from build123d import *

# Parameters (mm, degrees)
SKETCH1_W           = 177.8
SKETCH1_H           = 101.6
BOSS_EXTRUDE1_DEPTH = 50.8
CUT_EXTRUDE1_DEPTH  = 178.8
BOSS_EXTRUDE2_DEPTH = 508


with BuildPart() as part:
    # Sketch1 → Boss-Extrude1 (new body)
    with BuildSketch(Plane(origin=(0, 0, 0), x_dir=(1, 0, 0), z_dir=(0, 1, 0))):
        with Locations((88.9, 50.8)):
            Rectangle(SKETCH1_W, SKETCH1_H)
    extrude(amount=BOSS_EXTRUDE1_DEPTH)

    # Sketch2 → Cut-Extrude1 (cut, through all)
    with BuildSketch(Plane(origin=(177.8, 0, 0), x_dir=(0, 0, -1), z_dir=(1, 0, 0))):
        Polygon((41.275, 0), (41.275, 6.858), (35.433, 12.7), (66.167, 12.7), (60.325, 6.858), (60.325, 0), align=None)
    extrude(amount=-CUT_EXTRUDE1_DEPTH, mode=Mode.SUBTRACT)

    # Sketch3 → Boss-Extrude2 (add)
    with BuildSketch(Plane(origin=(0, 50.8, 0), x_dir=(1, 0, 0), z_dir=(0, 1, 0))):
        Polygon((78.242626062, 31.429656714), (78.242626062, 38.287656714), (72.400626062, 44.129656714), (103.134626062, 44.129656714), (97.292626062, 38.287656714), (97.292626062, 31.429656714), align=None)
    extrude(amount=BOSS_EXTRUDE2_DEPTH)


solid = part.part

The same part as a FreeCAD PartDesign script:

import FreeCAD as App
import Part
import Sketcher
Q = App.Units.Quantity


def add_polygon(sketch, points):
    """Adds a closed chain of lines whose ends are joined by coincident constraints."""
    first, n = sketch.GeometryCount, len(points)
    for a, b in zip(points, points[1:] + points[:1]):
        sketch.addGeometry(Part.LineSegment(App.Vector(*a, 0), App.Vector(*b, 0)), False)
    for i in range(n):
        sketch.addConstraint(Sketcher.Constraint("Coincident", first + i, 2, first + (i + 1) % n, 1))

doc = App.newDocument("Part")
body = doc.addObject("PartDesign::Body", "Body")

sketch1 = doc.addObject("Sketcher::SketchObject", "Sketch")
body.addObject(sketch1)
sketch1.AttachmentSupport = (doc.XZ_Plane, [""])
sketch1.MapMode = "FlatFace"
add_polygon(sketch1, [(0, -101.6), (0, 0), (177.8, 0), (177.8, -101.6)])
sketch1.addConstraint([
    Sketcher.Constraint("Vertical", 0),
    Sketcher.Constraint("Horizontal", 1),
    Sketcher.Constraint("Vertical", 2),
    Sketcher.Constraint("Horizontal", 3),
    Sketcher.Constraint("Coincident", 0, 2, -1, 1),
    Sketcher.Constraint("DistanceX", 1, 1, 1, 2, Q("7 in")),
    Sketcher.Constraint("DistanceY", 0, 1, 0, 2, Q("4 in")),
])
pad1 = doc.addObject("PartDesign::Pad", "Pad")
body.addObject(pad1)
pad1.Profile = sketch1
pad1.Length = Q("2 in")
pad1.Reversed = True

sketch2 = doc.addObject("Sketcher::SketchObject", "Sketch001")
body.addObject(sketch2)
sketch2.AttachmentSupport = (doc.YZ_Plane, [""])
sketch2.MapMode = "FlatFace"
sketch2.AttachmentOffset = App.Placement(App.Vector(0, 0, 7 * 25.4), App.Rotation())
add_polygon(sketch2, [(6.858, -41.275), (0, -41.275), (0, -60.325), (6.858, -60.325), (12.7, -66.167), (12.7, -35.433)])
sketch2.addConstraint([
    Sketcher.Constraint("Horizontal", 0),
    Sketcher.Constraint("Vertical", 1),
    Sketcher.Constraint("Horizontal", 2),
    Sketcher.Constraint("Vertical", 4),
    Sketcher.Constraint("PointOnObject", 0, 2, -2),
    Sketcher.Constraint("Perpendicular", 3, 5),
    Sketcher.Constraint("Vertical", 2, 2, 5, 2),
    Sketcher.Constraint("Equal", 3, 5),
    Sketcher.Constraint("DistanceX", 0, 2, 0, 1, Q("0.27 in")),
    Sketcher.Constraint("DistanceY", 1, 2, 1, 1, Q("0.75 in")),
    Sketcher.Constraint("DistanceY", 4, 1, 4, 2, Q("1.21 in")),
    Sketcher.Constraint("DistanceY", 0, 2, -1, 1, Q("1.625 in")),
])
pocket1 = doc.addObject("PartDesign::Pocket", "Pocket")
body.addObject(pocket1)
pocket1.Profile = sketch2
pocket1.Type = "ThroughAll"

sketch3 = doc.addObject("Sketcher::SketchObject", "Sketch002")
body.addObject(sketch3)
sketch3.AttachmentSupport = (doc.XZ_Plane, [""])
sketch3.MapMode = "FlatFace"
sketch3.AttachmentOffset = App.Placement(App.Vector(0, 0, -2 * 25.4), App.Rotation())
add_polygon(sketch3, [(78.242626, -38.287657), (78.242626, -31.429657), (97.292626, -31.429657), (97.292626, -38.287657), (103.134626, -44.129657), (72.400626, -44.129657)])
sketch3.addConstraint([
    Sketcher.Constraint("Vertical", 0),
    Sketcher.Constraint("Horizontal", 1),
    Sketcher.Constraint("Vertical", 2),
    Sketcher.Constraint("Horizontal", 4),
    Sketcher.Constraint("Perpendicular", 3, 5),
    Sketcher.Constraint("Horizontal", 2, 2, 5, 2),
    Sketcher.Constraint("Equal", 3, 5),
    Sketcher.Constraint("DistanceX", 1, 1, 1, 2, Q("0.75 in")),
    Sketcher.Constraint("DistanceX", 4, 2, 4, 1, Q("1.21 in")),
    Sketcher.Constraint("DistanceY", 0, 1, 0, 2, Q("0.27 in")),
    Sketcher.Constraint("DistanceX", -1, 1, 0, 2, Q("78.242626 mm")),
    Sketcher.Constraint("DistanceY", 0, 2, -1, 1, Q("31.429657 mm")),
])
pad2 = doc.addObject("PartDesign::Pad", "Pad001")
body.addObject(pad2)
pad2.Profile = sketch3
pad2.Length = Q("20 in")
pad2.Reversed = True

doc.recompute()
